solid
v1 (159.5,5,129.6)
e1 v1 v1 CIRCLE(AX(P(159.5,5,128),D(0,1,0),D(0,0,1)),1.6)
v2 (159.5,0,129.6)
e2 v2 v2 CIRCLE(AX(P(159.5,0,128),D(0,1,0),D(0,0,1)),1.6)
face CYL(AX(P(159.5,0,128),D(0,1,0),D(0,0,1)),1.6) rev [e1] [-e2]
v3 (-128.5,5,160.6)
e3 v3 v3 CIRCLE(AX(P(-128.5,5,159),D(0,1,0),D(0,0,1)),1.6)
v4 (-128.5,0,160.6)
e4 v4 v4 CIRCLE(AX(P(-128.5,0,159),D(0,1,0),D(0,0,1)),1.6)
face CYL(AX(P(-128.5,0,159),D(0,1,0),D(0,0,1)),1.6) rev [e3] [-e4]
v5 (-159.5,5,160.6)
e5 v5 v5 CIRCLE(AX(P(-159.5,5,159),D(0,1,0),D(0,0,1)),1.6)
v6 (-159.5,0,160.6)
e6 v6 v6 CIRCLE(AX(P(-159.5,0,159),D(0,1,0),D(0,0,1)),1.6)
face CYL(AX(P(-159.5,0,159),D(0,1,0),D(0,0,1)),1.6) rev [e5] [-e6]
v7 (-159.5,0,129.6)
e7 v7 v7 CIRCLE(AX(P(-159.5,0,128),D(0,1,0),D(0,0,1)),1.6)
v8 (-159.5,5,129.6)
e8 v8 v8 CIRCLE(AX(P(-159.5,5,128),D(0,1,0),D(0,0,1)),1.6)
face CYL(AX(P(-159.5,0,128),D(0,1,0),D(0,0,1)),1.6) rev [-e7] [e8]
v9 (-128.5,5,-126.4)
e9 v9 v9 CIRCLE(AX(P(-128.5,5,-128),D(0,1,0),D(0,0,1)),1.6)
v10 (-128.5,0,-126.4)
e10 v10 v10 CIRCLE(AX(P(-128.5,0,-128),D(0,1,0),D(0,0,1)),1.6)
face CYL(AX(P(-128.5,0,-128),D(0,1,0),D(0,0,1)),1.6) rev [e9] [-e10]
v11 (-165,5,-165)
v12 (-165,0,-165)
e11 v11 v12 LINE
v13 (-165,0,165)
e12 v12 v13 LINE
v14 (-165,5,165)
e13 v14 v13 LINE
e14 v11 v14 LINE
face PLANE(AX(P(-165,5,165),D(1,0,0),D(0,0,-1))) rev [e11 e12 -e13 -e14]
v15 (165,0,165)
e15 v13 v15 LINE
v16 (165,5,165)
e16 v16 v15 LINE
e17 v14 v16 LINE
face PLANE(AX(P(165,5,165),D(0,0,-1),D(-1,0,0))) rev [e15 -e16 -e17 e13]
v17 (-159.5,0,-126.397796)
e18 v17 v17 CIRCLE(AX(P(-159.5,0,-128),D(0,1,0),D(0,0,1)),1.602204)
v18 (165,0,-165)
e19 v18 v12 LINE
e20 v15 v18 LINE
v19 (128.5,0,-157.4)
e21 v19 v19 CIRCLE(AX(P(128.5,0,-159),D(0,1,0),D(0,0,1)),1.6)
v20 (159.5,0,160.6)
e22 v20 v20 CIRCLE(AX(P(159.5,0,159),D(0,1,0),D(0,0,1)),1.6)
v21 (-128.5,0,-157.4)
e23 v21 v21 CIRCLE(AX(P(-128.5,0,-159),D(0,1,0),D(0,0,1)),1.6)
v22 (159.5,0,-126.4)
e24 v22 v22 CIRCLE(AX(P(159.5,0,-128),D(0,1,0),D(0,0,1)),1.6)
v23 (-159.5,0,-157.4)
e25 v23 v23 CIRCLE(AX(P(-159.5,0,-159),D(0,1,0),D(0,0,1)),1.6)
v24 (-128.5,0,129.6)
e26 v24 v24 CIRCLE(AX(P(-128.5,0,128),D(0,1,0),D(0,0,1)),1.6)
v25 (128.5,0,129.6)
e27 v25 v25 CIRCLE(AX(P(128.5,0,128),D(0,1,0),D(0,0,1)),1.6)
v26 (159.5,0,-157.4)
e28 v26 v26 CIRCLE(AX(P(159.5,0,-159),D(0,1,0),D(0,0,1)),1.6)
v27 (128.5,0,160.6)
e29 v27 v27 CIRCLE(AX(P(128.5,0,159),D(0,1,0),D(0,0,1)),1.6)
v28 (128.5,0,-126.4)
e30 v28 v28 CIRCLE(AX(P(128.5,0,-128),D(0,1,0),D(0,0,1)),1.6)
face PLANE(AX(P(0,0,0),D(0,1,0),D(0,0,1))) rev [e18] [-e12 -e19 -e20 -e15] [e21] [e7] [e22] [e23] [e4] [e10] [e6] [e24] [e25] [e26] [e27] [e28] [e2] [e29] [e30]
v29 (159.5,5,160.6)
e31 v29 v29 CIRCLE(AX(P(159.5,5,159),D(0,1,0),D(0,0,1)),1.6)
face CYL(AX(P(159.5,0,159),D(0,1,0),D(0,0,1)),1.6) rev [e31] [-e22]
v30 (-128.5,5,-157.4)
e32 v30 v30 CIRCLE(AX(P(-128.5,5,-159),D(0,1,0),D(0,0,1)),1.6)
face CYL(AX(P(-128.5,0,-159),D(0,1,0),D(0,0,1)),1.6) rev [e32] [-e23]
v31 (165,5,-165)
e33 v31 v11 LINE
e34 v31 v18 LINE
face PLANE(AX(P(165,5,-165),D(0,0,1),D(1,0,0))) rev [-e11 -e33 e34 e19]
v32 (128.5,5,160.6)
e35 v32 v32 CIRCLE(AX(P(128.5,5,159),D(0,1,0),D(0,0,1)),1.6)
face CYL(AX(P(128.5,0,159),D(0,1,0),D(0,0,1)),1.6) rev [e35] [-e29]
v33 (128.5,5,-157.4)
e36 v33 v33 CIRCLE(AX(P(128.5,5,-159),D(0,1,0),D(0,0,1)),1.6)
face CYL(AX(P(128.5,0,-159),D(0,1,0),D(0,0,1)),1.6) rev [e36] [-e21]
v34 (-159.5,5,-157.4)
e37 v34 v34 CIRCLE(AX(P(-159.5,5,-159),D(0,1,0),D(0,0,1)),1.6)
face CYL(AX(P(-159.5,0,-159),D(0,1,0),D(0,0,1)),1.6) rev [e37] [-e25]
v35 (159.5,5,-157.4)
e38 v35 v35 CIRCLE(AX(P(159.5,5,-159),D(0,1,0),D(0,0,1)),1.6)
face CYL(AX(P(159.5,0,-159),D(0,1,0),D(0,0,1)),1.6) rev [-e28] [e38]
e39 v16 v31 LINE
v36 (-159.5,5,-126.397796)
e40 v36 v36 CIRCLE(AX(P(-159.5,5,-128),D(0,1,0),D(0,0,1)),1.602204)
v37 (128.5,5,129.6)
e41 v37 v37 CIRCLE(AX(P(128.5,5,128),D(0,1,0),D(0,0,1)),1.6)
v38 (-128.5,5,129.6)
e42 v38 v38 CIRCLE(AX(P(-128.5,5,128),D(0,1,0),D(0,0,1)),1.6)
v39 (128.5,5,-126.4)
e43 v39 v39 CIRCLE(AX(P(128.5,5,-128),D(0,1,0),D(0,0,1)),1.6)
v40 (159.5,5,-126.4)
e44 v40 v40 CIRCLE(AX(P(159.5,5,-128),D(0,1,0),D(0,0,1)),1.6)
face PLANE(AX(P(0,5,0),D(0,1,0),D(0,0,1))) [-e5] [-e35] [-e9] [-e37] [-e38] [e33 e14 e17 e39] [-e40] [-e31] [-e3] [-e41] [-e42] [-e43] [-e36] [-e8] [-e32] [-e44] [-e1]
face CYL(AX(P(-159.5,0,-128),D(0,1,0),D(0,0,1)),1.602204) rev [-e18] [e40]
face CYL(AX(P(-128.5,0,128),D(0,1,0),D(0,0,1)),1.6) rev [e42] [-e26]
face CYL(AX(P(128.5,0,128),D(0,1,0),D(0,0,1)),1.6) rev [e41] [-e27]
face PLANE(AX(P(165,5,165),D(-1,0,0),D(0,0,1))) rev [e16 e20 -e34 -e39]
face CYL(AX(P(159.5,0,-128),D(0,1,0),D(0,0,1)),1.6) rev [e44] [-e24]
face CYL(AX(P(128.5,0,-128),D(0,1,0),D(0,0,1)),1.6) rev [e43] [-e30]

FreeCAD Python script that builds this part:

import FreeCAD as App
import Part
import Sketcher

V = App.Vector
Q = App.Units.Quantity

doc = App.newDocument("Part")
body = doc.addObject("PartDesign::Body", "Body")

# Sketch on XZ plane
sketch1 = doc.addObject("Sketcher::SketchObject", "Sketch")
body.addObject(sketch1)
sketch1.AttachmentSupport = (doc.XZ_Plane, [""])
sketch1.MapMode = "FlatFace"
sketch1.addGeometry(Part.LineSegment(V(-165, -165, 0), V(-165, 165, 0)), False)
sketch1.addGeometry(Part.LineSegment(V(-165, 165, 0), V(165, 165, 0)), False)
sketch1.addGeometry(Part.LineSegment(V(165, 165, 0), V(165, -165, 0)), False)
sketch1.addGeometry(Part.LineSegment(V(165, -165, 0), V(-165, -165, 0)), False)
sketch1.addConstraint(Sketcher.Constraint("Coincident", 0, 2, 1, 1))
sketch1.addConstraint(Sketcher.Constraint("Coincident", 1, 2, 2, 1))
sketch1.addConstraint(Sketcher.Constraint("Coincident", 2, 2, 3, 1))
sketch1.addConstraint(Sketcher.Constraint("Coincident", 3, 2, 0, 1))
sketch1.addConstraint(Sketcher.Constraint("Vertical", 0))
sketch1.addConstraint(Sketcher.Constraint("Horizontal", 1))
sketch1.addConstraint(Sketcher.Constraint("Vertical", 2))
sketch1.addConstraint(Sketcher.Constraint("Horizontal", 3))
sketch1.addConstraint(Sketcher.Constraint("Symmetric", 0, 2, 2, 2, -1, 1))
sketch1.addConstraint(Sketcher.Constraint("Equal", 3, 0))
sketch1.addConstraint(Sketcher.Constraint("DistanceX", 1, 1, 1, 2, Q("330 mm")))
pad1 = doc.addObject("PartDesign::Pad", "Pad")
body.addObject(pad1)
pad1.Profile = sketch1
pad1.Length = 5
pad1.Reversed = True

# Sketch on XZ plane
sketch2 = doc.addObject("Sketcher::SketchObject", "Sketch001")
body.addObject(sketch2)
sketch2.AttachmentSupport = (doc.XZ_Plane, [""])
sketch2.MapMode = "FlatFace"
sketch2.AttachmentOffset = App.Placement(V(0, 0, -5), App.Rotation())
sketch2.addGeometry(Part.Circle(V(-159.5, -159, 0), V(0, 0, 1), 1.6), False)
sketch2.addGeometry(Part.Circle(V(-128.5, -159, 0), V(0, 0, 1), 1.6), False)
sketch2.addGeometry(Part.Circle(V(-159.5, -128, 0), V(0, 0, 1), 1.6), False)
sketch2.addGeometry(Part.Circle(V(-128.5, -128, 0), V(0, 0, 1), 1.6), False)
sketch2.addGeometry(Part.Circle(V(128.5, -159, 0), V(0, 0, 1), 1.6), False)
sketch2.addGeometry(Part.Circle(V(159.5, -159, 0), V(0, 0, 1), 1.6), False)
sketch2.addGeometry(Part.Circle(V(128.5, -128, 0), V(0, 0, 1), 1.6), False)
sketch2.addGeometry(Part.Circle(V(159.5, -128, 0), V(0, 0, 1), 1.6), False)
sketch2.addGeometry(Part.Circle(V(128.5, 128, 0), V(0, 0, 1), 1.6), False)
sketch2.addGeometry(Part.Circle(V(159.5, 128, 0), V(0, 0, 1), 1.6), False)
sketch2.addGeometry(Part.Circle(V(159.5, 159, 0), V(0, 0, 1), 1.6), False)
sketch2.addGeometry(Part.Circle(V(128.5, 159, 0), V(0, 0, 1), 1.6), False)
sketch2.addGeometry(Part.Circle(V(-128.5, 159, 0), V(0, 0, 1), 1.6), False)
sketch2.addGeometry(Part.Circle(V(-159.5, 159, 0), V(0, 0, 1), 1.6), False)
sketch2.addGeometry(Part.Circle(V(-159.5, 128, 0), V(0, 0, 1), 1.6), False)
sketch2.addGeometry(Part.Circle(V(-128.5, 128, 0), V(0, 0, 1), 1.6), False)
sketch2.addConstraint(Sketcher.Constraint("Equal", 0, 1))
sketch2.addConstraint(Sketcher.Constraint("Equal", 1, 3))
sketch2.addConstraint(Sketcher.Constraint("Equal", 3, 4))
sketch2.addConstraint(Sketcher.Constraint("Equal", 4, 5))
sketch2.addConstraint(Sketcher.Constraint("Equal", 5, 6))
sketch2.addConstraint(Sketcher.Constraint("Equal", 6, 7))
sketch2.addConstraint(Sketcher.Constraint("Equal", 7, 8))
sketch2.addConstraint(Sketcher.Constraint("Equal", 8, 9))
sketch2.addConstraint(Sketcher.Constraint("Equal", 9, 10))
sketch2.addConstraint(Sketcher.Constraint("Equal", 10, 11))
sketch2.addConstraint(Sketcher.Constraint("Equal", 11, 12))
sketch2.addConstraint(Sketcher.Constraint("Equal", 12, 13))
sketch2.addConstraint(Sketcher.Constraint("Equal", 13, 14))
sketch2.addConstraint(Sketcher.Constraint("Equal", 14, 15))
sketch2.addConstraint(Sketcher.Constraint("Symmetric", 3, 3, 8, 3, -1, 1))
sketch2.addConstraint(Sketcher.Constraint("Symmetric", 2, 3, 9, 3, -1, 1))
sketch2.addConstraint(Sketcher.Constraint("Symmetric", 0, 3, 10, 3, -1, 1))
sketch2.addConstraint(Sketcher.Constraint("Symmetric", 1, 3, 11, 3, -1, 1))
sketch2.addConstraint(Sketcher.Constraint("Symmetric", 4, 3, 12, 3, -1, 1))
sketch2.addConstraint(Sketcher.Constraint("Symmetric", 5, 3, 13, 3, -1, 1))
sketch2.addConstraint(Sketcher.Constraint("Symmetric", 7, 3, 14, 3, -1, 1))
sketch2.addConstraint(Sketcher.Constraint("Symmetric", 6, 3, 15, 3, -1, 1))
sketch2.addConstraint(Sketcher.Constraint("Symmetric", 1, 3, 4, 3, -2))
sketch2.addConstraint(Sketcher.Constraint("Symmetric", 0, 3, 5, 3, -2))
sketch2.addConstraint(Sketcher.Constraint("Symmetric", 3, 3, 6, 3, -2))
sketch2.addConstraint(Sketcher.Constraint("Symmetric", 2, 3, 7, 3, -2))
sketch2.addConstraint(Sketcher.Constraint("Horizontal", 0, 3, 1, 3))
sketch2.addConstraint(Sketcher.Constraint("Horizontal", 2, 3, 3, 3))
sketch2.addConstraint(Sketcher.Constraint("Vertical", 0, 3, 2, 3))
sketch2.addConstraint(Sketcher.Constraint("Vertical", 1, 3, 3, 3))
sketch2.addConstraint(Sketcher.Constraint("Diameter", 0, Q("3.2 mm")))
sketch2.addConstraint(Sketcher.Constraint("DistanceY", 0, 3, -1, 1, Q("159 mm")))
sketch2.addConstraint(Sketcher.Constraint("DistanceY", 2, 3, -1, 1, Q("128 mm")))
sketch2.addConstraint(Sketcher.Constraint("DistanceX", 0, 3, 1, 3, Q("31 mm")))
sketch2.addConstraint(Sketcher.Constraint("DistanceX", 1, 3, 4, 3, Q("257 mm")))
sketch2.addConstraint(Sketcher.Constraint("Diameter", 2, Q("3.204408 mm")))
pocket1 = doc.addObject("PartDesign::Pocket", "Pocket")
body.addObject(pocket1)
pocket1.Profile = sketch2
pocket1.Type = "ThroughAll"
pocket1.Reversed = True

doc.recompute()
